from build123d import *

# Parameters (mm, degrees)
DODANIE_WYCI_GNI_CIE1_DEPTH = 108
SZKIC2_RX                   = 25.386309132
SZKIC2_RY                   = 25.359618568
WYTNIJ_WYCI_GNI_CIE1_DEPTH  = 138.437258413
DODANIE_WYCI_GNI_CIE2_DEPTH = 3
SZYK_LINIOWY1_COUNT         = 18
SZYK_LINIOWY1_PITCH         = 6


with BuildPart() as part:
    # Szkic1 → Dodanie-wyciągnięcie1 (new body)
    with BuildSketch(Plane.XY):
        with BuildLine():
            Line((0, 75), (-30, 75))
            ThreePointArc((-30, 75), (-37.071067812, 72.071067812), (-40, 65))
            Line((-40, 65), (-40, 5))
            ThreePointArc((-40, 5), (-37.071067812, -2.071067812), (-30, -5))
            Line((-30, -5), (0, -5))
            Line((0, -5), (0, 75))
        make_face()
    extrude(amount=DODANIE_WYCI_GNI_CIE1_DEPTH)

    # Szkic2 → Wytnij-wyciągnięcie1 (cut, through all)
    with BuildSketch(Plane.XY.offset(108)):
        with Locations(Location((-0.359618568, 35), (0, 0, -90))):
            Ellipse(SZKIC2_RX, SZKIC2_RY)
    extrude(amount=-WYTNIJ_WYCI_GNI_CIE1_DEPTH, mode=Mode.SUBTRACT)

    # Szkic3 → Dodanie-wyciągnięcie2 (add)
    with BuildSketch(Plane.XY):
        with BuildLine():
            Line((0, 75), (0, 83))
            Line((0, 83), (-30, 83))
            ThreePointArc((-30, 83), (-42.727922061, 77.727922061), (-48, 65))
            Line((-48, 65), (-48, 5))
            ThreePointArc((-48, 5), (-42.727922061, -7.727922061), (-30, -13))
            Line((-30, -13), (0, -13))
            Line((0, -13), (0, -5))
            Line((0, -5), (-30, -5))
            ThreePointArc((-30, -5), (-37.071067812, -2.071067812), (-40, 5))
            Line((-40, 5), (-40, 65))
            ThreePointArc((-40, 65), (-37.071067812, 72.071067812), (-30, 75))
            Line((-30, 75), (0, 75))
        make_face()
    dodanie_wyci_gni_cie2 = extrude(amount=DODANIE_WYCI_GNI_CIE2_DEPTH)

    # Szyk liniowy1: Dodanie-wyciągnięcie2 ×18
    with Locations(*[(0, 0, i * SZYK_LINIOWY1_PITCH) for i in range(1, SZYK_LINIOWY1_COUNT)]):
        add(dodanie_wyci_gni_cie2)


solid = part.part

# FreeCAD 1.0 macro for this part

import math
import FreeCAD as App
import Part
import Sketcher

doc = App.newDocument("Part")
body = doc.addObject("PartDesign::Body", "Body")

sketch1 = body.newObject("Sketcher::SketchObject", "Sketch")
sketch1.AttachmentSupport = (doc.getObject("XY_Plane"), [""])
sketch1.MapMode = "FlatFace"
sketch1.addGeometry(Part.LineSegment(App.Vector(0, 75, 0), App.Vector(-30, 75, 0)), False)
sketch1.addGeometry(Part.ArcOfCircle(Part.Circle(App.Vector(-30, 65, 0), App.Vector(0, 0, 1), 10), math.radians(90), math.radians(180)), False)
sketch1.addGeometry(Part.LineSegment(App.Vector(-40, 65, 0), App.Vector(-40, 5, 0)), False)
sketch1.addGeometry(Part.ArcOfCircle(Part.Circle(App.Vector(-30, 5, 0), App.Vector(0, 0, 1), 10), math.radians(180), math.radians(270)), False)
sketch1.addGeometry(Part.LineSegment(App.Vector(-30, -5, 0), App.Vector(0, -5, 0)), False)
sketch1.addGeometry(Part.LineSegment(App.Vector(0, -5, 0), App.Vector(0, 75, 0)), False)
sketch1.addConstraint(Sketcher.Constraint("Tangent", 0, 2, 1, 1))
sketch1.addConstraint(Sketcher.Constraint("Tangent", 1, 2, 2, 1))
sketch1.addConstraint(Sketcher.Constraint("Tangent", 2, 2, 3, 1))
sketch1.addConstraint(Sketcher.Constraint("Tangent", 3, 2, 4, 1))
sketch1.addConstraint(Sketcher.Constraint("Coincident", 4, 2, 5, 1))
sketch1.addConstraint(Sketcher.Constraint("Coincident", 5, 2, 0, 1))
sketch1.addConstraint(Sketcher.Constraint("Horizontal", 0))
sketch1.addConstraint(Sketcher.Constraint("Vertical", 2))
sketch1.addConstraint(Sketcher.Constraint("Horizontal", 4))
sketch1.addConstraint(Sketcher.Constraint("Vertical", 5))
sketch1.addConstraint(Sketcher.Constraint("Equal", 1, 3))
sketch1.addConstraint(Sketcher.Constraint("PointOnObject", 4, 2, -2))
sketch1.addConstraint(Sketcher.Constraint("Radius", 1, 10.0))
sketch1.addConstraint(Sketcher.Constraint("DistanceX", 0, 2, 0, 1, 30.0))
sketch1.addConstraint(Sketcher.Constraint("DistanceY", 2, 2, 2, 1, 60.0))
sketch1.addConstraint(Sketcher.Constraint("DistanceY", -1, 1, 1, 3, 65.0))
pad1 = body.newObject("PartDesign::Pad", "Pad")
pad1.Profile = sketch1
pad1.Length = 108

sketch2 = body.newObject("Sketcher::SketchObject", "Sketch001")
sketch2.AttachmentSupport = (doc.getObject("XY_Plane"), [""])
sketch2.MapMode = "FlatFace"
sketch2.AttachmentOffset = App.Placement(App.Vector(0, 0, 108), App.Rotation())
sketch2.addGeometry(Part.Ellipse(App.Vector(-0.359619, 9.613691, 0), App.Vector(25, 35, 0), App.Vector(-0.359619, 35, 0)), False)
sketch2.addConstraint(Sketcher.Constraint("Block", 0))
pocket1 = body.newObject("PartDesign::Pocket", "Pocket")
pocket1.Profile = sketch2
pocket1.Type = "ThroughAll"

sketch3 = body.newObject("Sketcher::SketchObject", "Sketch002")
sketch3.AttachmentSupport = (doc.getObject("XY_Plane"), [""])
sketch3.MapMode = "FlatFace"
sketch3.addGeometry(Part.LineSegment(App.Vector(0, 75, 0), App.Vector(0, 83, 0)), False)
sketch3.addGeometry(Part.LineSegment(App.Vector(0, 83, 0), App.Vector(-30, 83, 0)), False)
sketch3.addGeometry(Part.ArcOfCircle(Part.Circle(App.Vector(-30, 65, 0), App.Vector(0, 0, 1), 18), math.radians(90), math.radians(180)), False)
sketch3.addGeometry(Part.LineSegment(App.Vector(-48, 65, 0), App.Vector(-48, 5, 0)), False)
sketch3.addGeometry(Part.ArcOfCircle(Part.Circle(App.Vector(-30, 5, 0), App.Vector(0, 0, 1), 18), math.radians(-180), math.radians(-90)), False)
sketch3.addGeometry(Part.LineSegment(App.Vector(-30, -13, 0), App.Vector(0, -13, 0)), False)
sketch3.addGeometry(Part.LineSegment(App.Vector(0, -13, 0), App.Vector(0, -5, 0)), False)
sketch3.addGeometry(Part.LineSegment(App.Vector(0, -5, 0), App.Vector(-30, -5, 0)), False)
sketch3.addGeometry(Part.ArcOfCircle(Part.Circle(App.Vector(-30, 5, 0), App.Vector(0, 0, 1), 10), math.radians(180), math.radians(270)), False)
sketch3.addGeometry(Part.LineSegment(App.Vector(-40, 5, 0), App.Vector(-40, 65, 0)), False)
sketch3.addGeometry(Part.ArcOfCircle(Part.Circle(App.Vector(-30, 65, 0), App.Vector(0, 0, 1), 10), math.radians(90), math.radians(180)), False)
sketch3.addGeometry(Part.LineSegment(App.Vector(-30, 75, 0), App.Vector(0, 75, 0)), False)
sketch3.addConstraint(Sketcher.Constraint("Coincident", 0, 2, 1, 1))
sketch3.addConstraint(Sketcher.Constraint("Tangent", 1, 2, 2, 1))
sketch3.addConstraint(Sketcher.Constraint("Tangent", 2, 2, 3, 1))
sketch3.addConstraint(Sketcher.Constraint("Tangent", 3, 2, 4, 1))
sketch3.addConstraint(Sketcher.Constraint("Tangent", 4, 2, 5, 1))
sketch3.addConstraint(Sketcher.Constraint("Coincident", 5, 2, 6, 1))
sketch3.addConstraint(Sketcher.Constraint("Coincident", 6, 2, 7, 1))
sketch3.addConstraint(Sketcher.Constraint("Tangent", 7, 2, 8, 2))
sketch3.addConstraint(Sketcher.Constraint("Tangent", 8, 1, 9, 1))
sketch3.addConstraint(Sketcher.Constraint("Tangent", 9, 2, 10, 2))
sketch3.addConstraint(Sketcher.Constraint("Tangent", 10, 1, 11, 1))
sketch3.addConstraint(Sketcher.Constraint("Coincident", 11, 2, 0, 1))
sketch3.addConstraint(Sketcher.Constraint("Vertical", 0))
sketch3.addConstraint(Sketcher.Constraint("Horizontal", 1))
sketch3.addConstraint(Sketcher.Constraint("Vertical", 3))
sketch3.addConstraint(Sketcher.Constraint("Horizontal", 5))
sketch3.addConstraint(Sketcher.Constraint("Vertical", 6))
sketch3.addConstraint(Sketcher.Constraint("Horizontal", 7))
sketch3.addConstraint(Sketcher.Constraint("Vertical", 9))
sketch3.addConstraint(Sketcher.Constraint("Horizontal", 11))
sketch3.addConstraint(Sketcher.Constraint("Coincident", 8, 3, 4, 3))
sketch3.addConstraint(Sketcher.Constraint("Coincident", 10, 3, 2, 3))
sketch3.addConstraint(Sketcher.Constraint("Equal", 2, 4))
sketch3.addConstraint(Sketcher.Constraint("PointOnObject", 0, 2, -2))
sketch3.addConstraint(Sketcher.Constraint("PointOnObject", 5, 2, -2))
sketch3.addConstraint(Sketcher.Constraint("Radius", 2, 18.0))
sketch3.addConstraint(Sketcher.Constraint("Radius", 8, 10.0))
sketch3.addConstraint(Sketcher.Constraint("DistanceX", 1, 2, 1, 1, 30.0))
sketch3.addConstraint(Sketcher.Constraint("DistanceY", 3, 2, 3, 1, 60.0))
sketch3.addConstraint(Sketcher.Constraint("DistanceY", -1, 1, 2, 3, 65.0))
pad2 = body.newObject("PartDesign::Pad", "Pad001")
pad2.Profile = sketch3
pad2.Length = 3
doc.recompute()

linearpattern = body.newObject("PartDesign::LinearPattern", "LinearPattern")
linearpattern.Originals = [pad2]
linearpattern.Direction = (doc.getObject("Z_Axis"), [""])
linearpattern.Mode = "offset"
linearpattern.Offset = 6
linearpattern.Occurrences = 18
body.Tip = linearpattern

doc.recompute()
